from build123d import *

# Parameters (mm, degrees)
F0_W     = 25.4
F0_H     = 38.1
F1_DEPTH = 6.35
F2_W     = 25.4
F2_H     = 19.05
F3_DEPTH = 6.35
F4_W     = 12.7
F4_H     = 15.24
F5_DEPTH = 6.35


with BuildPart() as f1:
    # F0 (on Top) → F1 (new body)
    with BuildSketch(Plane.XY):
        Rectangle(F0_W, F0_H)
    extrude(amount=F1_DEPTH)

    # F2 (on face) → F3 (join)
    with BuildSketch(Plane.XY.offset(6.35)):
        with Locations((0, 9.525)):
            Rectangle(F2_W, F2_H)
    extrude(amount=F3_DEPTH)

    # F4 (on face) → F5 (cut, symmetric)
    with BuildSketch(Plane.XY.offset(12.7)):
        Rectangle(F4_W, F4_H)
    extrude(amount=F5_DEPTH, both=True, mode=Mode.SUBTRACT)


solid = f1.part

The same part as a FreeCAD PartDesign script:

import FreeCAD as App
import Part
import Sketcher
Q = App.Units.Quantity


def add_polygon(sketch, points):
    """Adds a closed chain of lines whose ends are joined by coincident constraints."""
    first, n = sketch.GeometryCount, len(points)
    for a, b in zip(points, points[1:] + points[:1]):
        sketch.addGeometry(Part.LineSegment(App.Vector(*a, 0), App.Vector(*b, 0)), False)
    for i in range(n):
        sketch.addConstraint(Sketcher.Constraint("Coincident", first + i, 2, first + (i + 1) % n, 1))

doc = App.newDocument("Part")
body = doc.addObject("PartDesign::Body", "Body")

# Sketch on XY plane
sketch1 = body.newObject("Sketcher::SketchObject", "Sketch")
sketch1.AttachmentSupport = (doc.getObject("XY_Plane"), [""])
sketch1.MapMode = "FlatFace"
add_polygon(sketch1, [(-13, 19), (-13, -19), (13, -19), (13, 19)])  # lines 0-3
sketch1.addConstraint(Sketcher.Constraint("Vertical", 0))
sketch1.addConstraint(Sketcher.Constraint("Horizontal", 1))
sketch1.addConstraint(Sketcher.Constraint("Vertical", 2))
sketch1.addConstraint(Sketcher.Constraint("Horizontal", 3))
sketch1.addConstraint(Sketcher.Constraint("Symmetric", 0, 2, 2, 2, -1, 1))
sketch1.addConstraint(Sketcher.Constraint("DistanceX", 1, 1, 1, 2, Q("1 in")))
sketch1.addConstraint(Sketcher.Constraint("DistanceY", 0, 2, 0, 1, Q("1.5 in")))
pad1 = body.newObject("PartDesign::Pad", "Pad")
pad1.Profile = sketch1
pad1.Length = Q("0.25 in")

# Sketch on XY plane
sketch2 = body.newObject("Sketcher::SketchObject", "Sketch001")
sketch2.AttachmentSupport = (doc.getObject("XY_Plane"), [""])
sketch2.MapMode = "FlatFace"
sketch2.AttachmentOffset = App.Placement(App.Vector(0, 0, 0.25 * 25.4), App.Rotation())
add_polygon(sketch2, [(-13, 19), (-13, 0), (13, 0), (13, 19)])  # lines 0-3
sketch2.addConstraint(Sketcher.Constraint("Vertical", 0))
sketch2.addConstraint(Sketcher.Constraint("Horizontal", 1))
sketch2.addConstraint(Sketcher.Constraint("Vertical", 2))
sketch2.addConstraint(Sketcher.Constraint("Horizontal", 3))
sketch2.addConstraint(Sketcher.Constraint("Symmetric", 0, 2, 1, 2, -1, 1))
sketch2.addConstraint(Sketcher.Constraint("DistanceX", 1, 1, 1, 2, Q("1 in")))
sketch2.addConstraint(Sketcher.Constraint("DistanceY", 0, 2, 0, 1, Q("0.75 in")))
pad2 = body.newObject("PartDesign::Pad", "Pad001")
pad2.Profile = sketch2
pad2.Length = Q("0.25 in")

# Sketch on XY plane
sketch3 = body.newObject("Sketcher::SketchObject", "Sketch002")
sketch3.AttachmentSupport = (doc.getObject("XY_Plane"), [""])
sketch3.MapMode = "FlatFace"
sketch3.AttachmentOffset = App.Placement(App.Vector(0, 0, 0.5 * 25.4), App.Rotation())
add_polygon(sketch3, [(-6, 8), (-6, -8), (6, -8), (6, 8)])  # lines 0-3
sketch3.addConstraint(Sketcher.Constraint("Vertical", 0))
sketch3.addConstraint(Sketcher.Constraint("Horizontal", 1))
sketch3.addConstraint(Sketcher.Constraint("Vertical", 2))
sketch3.addConstraint(Sketcher.Constraint("Horizontal", 3))
sketch3.addConstraint(Sketcher.Constraint("Symmetric", 0, 2, 2, 2, -1, 1))
sketch3.addConstraint(Sketcher.Constraint("DistanceX", 1, 1, 1, 2, Q("0.5 in")))
sketch3.addConstraint(Sketcher.Constraint("DistanceY", 0, 2, 0, 1, Q("0.6 in")))
pocket1 = body.newObject("PartDesign::Pocket", "Pocket")
pocket1.Profile = sketch3
pocket1.Length = Q("0.5 in")
pocket1.Midplane = True

doc.recompute()
